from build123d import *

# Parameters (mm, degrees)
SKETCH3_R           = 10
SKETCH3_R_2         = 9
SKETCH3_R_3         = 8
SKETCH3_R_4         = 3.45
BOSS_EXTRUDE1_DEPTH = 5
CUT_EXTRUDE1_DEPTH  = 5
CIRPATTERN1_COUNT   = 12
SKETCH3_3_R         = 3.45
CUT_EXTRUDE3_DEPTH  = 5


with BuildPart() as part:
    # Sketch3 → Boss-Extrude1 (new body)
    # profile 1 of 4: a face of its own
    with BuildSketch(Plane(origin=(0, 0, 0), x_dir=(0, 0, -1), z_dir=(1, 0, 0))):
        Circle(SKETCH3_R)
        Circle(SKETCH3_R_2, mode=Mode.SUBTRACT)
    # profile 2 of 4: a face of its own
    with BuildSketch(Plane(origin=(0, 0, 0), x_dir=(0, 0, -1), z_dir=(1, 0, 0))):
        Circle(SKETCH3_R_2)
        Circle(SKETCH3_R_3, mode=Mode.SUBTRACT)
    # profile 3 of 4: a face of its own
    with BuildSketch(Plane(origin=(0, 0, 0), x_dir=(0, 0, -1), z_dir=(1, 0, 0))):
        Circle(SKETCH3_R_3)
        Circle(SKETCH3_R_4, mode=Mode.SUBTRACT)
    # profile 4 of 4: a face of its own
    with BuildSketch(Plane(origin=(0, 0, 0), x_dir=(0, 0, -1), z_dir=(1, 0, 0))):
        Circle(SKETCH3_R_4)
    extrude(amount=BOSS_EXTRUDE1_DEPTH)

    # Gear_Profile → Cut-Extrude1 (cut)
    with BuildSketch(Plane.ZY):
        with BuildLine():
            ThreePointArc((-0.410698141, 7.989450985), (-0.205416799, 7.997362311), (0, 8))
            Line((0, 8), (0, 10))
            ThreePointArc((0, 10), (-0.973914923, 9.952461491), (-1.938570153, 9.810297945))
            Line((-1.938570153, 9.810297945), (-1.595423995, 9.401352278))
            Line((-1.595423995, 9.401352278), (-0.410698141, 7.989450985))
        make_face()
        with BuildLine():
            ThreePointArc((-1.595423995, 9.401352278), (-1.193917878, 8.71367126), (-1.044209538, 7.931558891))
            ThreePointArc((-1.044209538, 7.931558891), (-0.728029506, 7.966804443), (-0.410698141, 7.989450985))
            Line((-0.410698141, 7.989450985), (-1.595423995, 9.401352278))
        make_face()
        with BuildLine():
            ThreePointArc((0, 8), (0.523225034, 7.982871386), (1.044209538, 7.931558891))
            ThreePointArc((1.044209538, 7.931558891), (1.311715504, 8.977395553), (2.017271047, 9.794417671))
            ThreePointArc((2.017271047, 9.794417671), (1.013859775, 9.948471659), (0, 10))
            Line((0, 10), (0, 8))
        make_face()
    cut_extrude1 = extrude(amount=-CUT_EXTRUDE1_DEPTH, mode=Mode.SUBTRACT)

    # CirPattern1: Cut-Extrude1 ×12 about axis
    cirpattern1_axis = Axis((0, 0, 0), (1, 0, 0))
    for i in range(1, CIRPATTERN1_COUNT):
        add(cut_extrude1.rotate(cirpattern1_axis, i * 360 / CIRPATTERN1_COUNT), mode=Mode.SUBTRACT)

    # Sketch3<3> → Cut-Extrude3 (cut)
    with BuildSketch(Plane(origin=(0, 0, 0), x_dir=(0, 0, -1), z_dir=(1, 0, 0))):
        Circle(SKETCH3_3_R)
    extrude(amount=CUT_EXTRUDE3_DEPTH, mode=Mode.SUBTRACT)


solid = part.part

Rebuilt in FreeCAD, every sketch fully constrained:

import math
import FreeCAD as App
import Part
import Sketcher

V = App.Vector
Q = App.Units.Quantity

doc = App.newDocument("Part")
body = doc.addObject("PartDesign::Body", "Body")

# Sketch on YZ plane
sketch1 = doc.addObject("Sketcher::SketchObject", "Sketch")
body.addObject(sketch1)
sketch1.AttachmentSupport = (doc.YZ_Plane, [""])
sketch1.MapMode = "FlatFace"
sketch1.addGeometry(Part.Circle(V(0, 0, 0), V(0, 0, 1), 10), False)
sketch1.addConstraint(Sketcher.Constraint("Coincident", 0, 3, -1, 1))
sketch1.addConstraint(Sketcher.Constraint("Diameter", 0, 20.0))
pad1 = doc.addObject("PartDesign::Pad", "Pad")
body.addObject(pad1)
pad1.Profile = sketch1
pad1.Length = 5

# Sketch on YZ plane
sketch2 = doc.addObject("Sketcher::SketchObject", "Sketch001")
body.addObject(sketch2)
sketch2.AttachmentSupport = (doc.YZ_Plane, [""])
sketch2.MapMode = "FlatFace"
sketch2.addGeometry(Part.ArcOfCircle(Part.Circle(V(0, 0, 0), V(0, 0, 1), 8), math.radians(-2.94), math.radians(0)), False)
sketch2.addGeometry(Part.ArcOfCircle(Part.Circle(V(0, 0, 0), V(0, 0, 1), 8), math.radians(0), math.radians(7.5)), False)
sketch2.addGeometry(Part.ArcOfCircle(Part.Circle(V(7.89, 3.4, 0), V(0, 0, 1), 2.36), math.radians(-89), math.radians(-36)), False)
sketch2.addGeometry(Part.ArcOfCircle(Part.Circle(V(0, 0, 0), V(0, 0, 1), 10), math.radians(0), math.radians(11.64)), False)
sketch2.addGeometry(Part.ArcOfCircle(Part.Circle(V(0, 0, 0), V(0, 0, 1), 10), math.radians(-11.18), math.radians(0)), False)
sketch2.addGeometry(Part.LineSegment(V(9.81, -1.94, 0), V(9.4, -1.6, 0)), False)
sketch2.addGeometry(Part.ArcOfCircle(Part.Circle(V(7.89, -3.4, 0), V(0, 0, 1), 2.36), math.radians(50), math.radians(89)), False)
sketch2.addGeometry(Part.ArcOfCircle(Part.Circle(V(0, 0, 0), V(0, 0, 1), 8), math.radians(-7.5), math.radians(-2.94)), False)
sketch2.addConstraint(Sketcher.Constraint("Tangent", 0, 2, 1, 1))
sketch2.addConstraint(Sketcher.Constraint("Coincident", 1, 2, 2, 1))
sketch2.addConstraint(Sketcher.Constraint("Coincident", 2, 2, 3, 2))
sketch2.addConstraint(Sketcher.Constraint("Tangent", 3, 1, 4, 2))
sketch2.addConstraint(Sketcher.Constraint("Coincident", 4, 1, 5, 1))
sketch2.addConstraint(Sketcher.Constraint("Tangent", 5, 2, 6, 1))
sketch2.addConstraint(Sketcher.Constraint("Coincident", 6, 2, 7, 1))
sketch2.addConstraint(Sketcher.Constraint("Tangent", 7, 2, 0, 1))
sketch2.addConstraint(Sketcher.Constraint("Coincident", 0, 3, -1, 1))
sketch2.addConstraint(Sketcher.Constraint("Coincident", 3, 3, -1, 1))
sketch2.addConstraint(Sketcher.Constraint("Equal", 0, 1))
sketch2.addConstraint(Sketcher.Constraint("Equal", 3, 4))
sketch2.addConstraint(Sketcher.Constraint("Equal", 2, 6))
sketch2.addConstraint(Sketcher.Constraint("Equal", 1, 7))
sketch2.addConstraint(Sketcher.Constraint("Symmetric", 2, 3, 6, 3, -1))
sketch2.addConstraint(Sketcher.Constraint("PointOnObject", 0, 2, -1))
sketch2.addConstraint(Sketcher.Constraint("PointOnObject", 3, 1, -1))
sketch2.addConstraint(Sketcher.Constraint("Radius", 0, 8.000001))
sketch2.addConstraint(Sketcher.Constraint("Radius", 3, 10.0))
sketch2.addConstraint(Sketcher.Constraint("Angle", 5, Q("140 deg")))
sketch2.addConstraint(Sketcher.Constraint("Radius", 2, 2.357973))
sketch2.addConstraint(Sketcher.Constraint("DistanceY", 7, 2, -1, 1, 0.410698))
sketch2.addConstraint(Sketcher.Constraint("DistanceX", 7, 2, 5, 2, 1.411901))
sketch2.addConstraint(Sketcher.Constraint("Distance", 5, 0.533841))
pocket1 = doc.addObject("PartDesign::Pocket", "Pocket")
body.addObject(pocket1)
pocket1.Profile = sketch2
pocket1.Length = 5
pocket1.Reversed = True
doc.recompute()

polarpattern = doc.addObject("PartDesign::PolarPattern", "PolarPattern")
body.addObject(polarpattern)
polarpattern.Originals = [pocket1]
polarpattern.Axis = (doc.X_Axis, [""])
polarpattern.Angle = 360
polarpattern.Occurrences = 12
body.Tip = polarpattern

# Sketch on YZ plane
sketch3 = doc.addObject("Sketcher::SketchObject", "Sketch002")
body.addObject(sketch3)
sketch3.AttachmentSupport = (doc.YZ_Plane, [""])
sketch3.MapMode = "FlatFace"
sketch3.addGeometry(Part.Circle(V(0, 0, 0), V(0, 0, 1), 3.5), False)
sketch3.addConstraint(Sketcher.Constraint("Coincident", 0, 3, -1, 1))
sketch3.addConstraint(Sketcher.Constraint("Diameter", 0, 6.9))
pocket2 = doc.addObject("PartDesign::Pocket", "Pocket001")
body.addObject(pocket2)
pocket2.Profile = sketch3
pocket2.Length = 5
pocket2.Reversed = True

doc.recompute()
